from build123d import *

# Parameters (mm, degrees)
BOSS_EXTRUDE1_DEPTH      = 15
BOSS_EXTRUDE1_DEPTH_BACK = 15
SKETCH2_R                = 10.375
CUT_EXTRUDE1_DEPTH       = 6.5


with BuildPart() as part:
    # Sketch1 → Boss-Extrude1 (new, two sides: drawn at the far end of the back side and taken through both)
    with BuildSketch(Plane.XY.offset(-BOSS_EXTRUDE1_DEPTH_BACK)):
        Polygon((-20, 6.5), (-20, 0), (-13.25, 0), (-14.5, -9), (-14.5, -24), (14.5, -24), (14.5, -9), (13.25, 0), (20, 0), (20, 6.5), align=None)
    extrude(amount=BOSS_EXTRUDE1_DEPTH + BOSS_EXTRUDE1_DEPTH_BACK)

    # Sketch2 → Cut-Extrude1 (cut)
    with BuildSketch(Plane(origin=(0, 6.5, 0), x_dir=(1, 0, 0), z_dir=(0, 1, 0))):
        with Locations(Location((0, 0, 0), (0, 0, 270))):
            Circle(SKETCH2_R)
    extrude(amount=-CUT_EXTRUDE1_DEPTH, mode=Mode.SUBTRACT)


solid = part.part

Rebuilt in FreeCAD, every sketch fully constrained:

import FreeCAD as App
import Part
import Sketcher

doc = App.newDocument("Part")
body = doc.addObject("PartDesign::Body", "Body")

# Sketch on XY plane
sketch1 = doc.addObject("Sketcher::SketchObject", "Sketch")
body.addObject(sketch1)
sketch1.AttachmentSupport = (doc.XY_Plane, [""])
sketch1.MapMode = "FlatFace"
sketch1.addGeometry(Part.LineSegment(App.Vector(-20, 6, 0), App.Vector(-20, 0, 0)), False)
sketch1.addGeometry(Part.LineSegment(App.Vector(-20, 0, 0), App.Vector(-13, 0, 0)), False)
sketch1.addGeometry(Part.LineSegment(App.Vector(-13, 0, 0), App.Vector(-14, -9, 0)), False)
sketch1.addGeometry(Part.LineSegment(App.Vector(-14, -9, 0), App.Vector(-14, -24, 0)), False)
sketch1.addGeometry(Part.LineSegment(App.Vector(-14, -24, 0), App.Vector(14, -24, 0)), False)
sketch1.addGeometry(Part.LineSegment(App.Vector(14, -24, 0), App.Vector(14, -9, 0)), False)
sketch1.addGeometry(Part.LineSegment(App.Vector(14, -9, 0), App.Vector(13, 0, 0)), False)
sketch1.addGeometry(Part.LineSegment(App.Vector(13, 0, 0), App.Vector(20, 0, 0)), False)
sketch1.addGeometry(Part.LineSegment(App.Vector(20, 0, 0), App.Vector(20, 6, 0)), False)
sketch1.addGeometry(Part.LineSegment(App.Vector(20, 6, 0), App.Vector(-20, 6, 0)), False)
sketch1.addConstraint(Sketcher.Constraint("Coincident", 0, 2, 1, 1))
sketch1.addConstraint(Sketcher.Constraint("Coincident", 1, 2, 2, 1))
sketch1.addConstraint(Sketcher.Constraint("Coincident", 2, 2, 3, 1))
sketch1.addConstraint(Sketcher.Constraint("Coincident", 3, 2, 4, 1))
sketch1.addConstraint(Sketcher.Constraint("Coincident", 4, 2, 5, 1))
sketch1.addConstraint(Sketcher.Constraint("Coincident", 5, 2, 6, 1))
sketch1.addConstraint(Sketcher.Constraint("Coincident", 6, 2, 7, 1))
sketch1.addConstraint(Sketcher.Constraint("Coincident", 7, 2, 8, 1))
sketch1.addConstraint(Sketcher.Constraint("Coincident", 8, 2, 9, 1))
sketch1.addConstraint(Sketcher.Constraint("Coincident", 9, 2, 0, 1))
sketch1.addConstraint(Sketcher.Constraint("Vertical", 0))
sketch1.addConstraint(Sketcher.Constraint("Horizontal", 1))
sketch1.addConstraint(Sketcher.Constraint("Vertical", 3))
sketch1.addConstraint(Sketcher.Constraint("Horizontal", 4))
sketch1.addConstraint(Sketcher.Constraint("Vertical", 5))
sketch1.addConstraint(Sketcher.Constraint("Horizontal", 7))
sketch1.addConstraint(Sketcher.Constraint("Vertical", 8))
sketch1.addConstraint(Sketcher.Constraint("Horizontal", 9))
sketch1.addConstraint(Sketcher.Constraint("Symmetric", 1, 2, 6, 2, -1, 1))
sketch1.addConstraint(Sketcher.Constraint("Symmetric", 2, 2, 5, 2, -2))
sketch1.addConstraint(Sketcher.Constraint("Symmetric", 0, 2, 7, 2, -2))
sketch1.addConstraint(Sketcher.Constraint("DistanceX", 4, 1, 4, 2, 29.0))
sketch1.addConstraint(Sketcher.Constraint("DistanceX", 9, 2, 9, 1, 40.0))
sketch1.addConstraint(Sketcher.Constraint("DistanceY", 3, 2, 3, 1, 15.0))
sketch1.addConstraint(Sketcher.Constraint("DistanceY", 0, 2, 0, 1, 6.5))
sketch1.addConstraint(Sketcher.Constraint("DistanceY", 2, 2, -1, 1, 9.0))
sketch1.addConstraint(Sketcher.Constraint("DistanceX", 1, 1, 1, 2, 6.75))
pad1 = doc.addObject("PartDesign::Pad", "Pad")
body.addObject(pad1)
pad1.Profile = sketch1
pad1.Type = "TwoLengths"
pad1.Length = 15
pad1.Length2 = 15

# Sketch on XZ plane
sketch2 = doc.addObject("Sketcher::SketchObject", "Sketch001")
body.addObject(sketch2)
sketch2.AttachmentSupport = (doc.XZ_Plane, [""])
sketch2.MapMode = "FlatFace"
sketch2.AttachmentOffset = App.Placement(App.Vector(0, 0, -6.5), App.Rotation())
sketch2.addGeometry(Part.Circle(App.Vector(0, 0, 0), App.Vector(0, 0, 1), 10), False)
sketch2.addConstraint(Sketcher.Constraint("Coincident", 0, 3, -1, 1))
sketch2.addConstraint(Sketcher.Constraint("Diameter", 0, 20.75))
pocket1 = doc.addObject("PartDesign::Pocket", "Pocket")
body.addObject(pocket1)
pocket1.Profile = sketch2
pocket1.Length = 6.5
pocket1.Reversed = True

doc.recompute()
